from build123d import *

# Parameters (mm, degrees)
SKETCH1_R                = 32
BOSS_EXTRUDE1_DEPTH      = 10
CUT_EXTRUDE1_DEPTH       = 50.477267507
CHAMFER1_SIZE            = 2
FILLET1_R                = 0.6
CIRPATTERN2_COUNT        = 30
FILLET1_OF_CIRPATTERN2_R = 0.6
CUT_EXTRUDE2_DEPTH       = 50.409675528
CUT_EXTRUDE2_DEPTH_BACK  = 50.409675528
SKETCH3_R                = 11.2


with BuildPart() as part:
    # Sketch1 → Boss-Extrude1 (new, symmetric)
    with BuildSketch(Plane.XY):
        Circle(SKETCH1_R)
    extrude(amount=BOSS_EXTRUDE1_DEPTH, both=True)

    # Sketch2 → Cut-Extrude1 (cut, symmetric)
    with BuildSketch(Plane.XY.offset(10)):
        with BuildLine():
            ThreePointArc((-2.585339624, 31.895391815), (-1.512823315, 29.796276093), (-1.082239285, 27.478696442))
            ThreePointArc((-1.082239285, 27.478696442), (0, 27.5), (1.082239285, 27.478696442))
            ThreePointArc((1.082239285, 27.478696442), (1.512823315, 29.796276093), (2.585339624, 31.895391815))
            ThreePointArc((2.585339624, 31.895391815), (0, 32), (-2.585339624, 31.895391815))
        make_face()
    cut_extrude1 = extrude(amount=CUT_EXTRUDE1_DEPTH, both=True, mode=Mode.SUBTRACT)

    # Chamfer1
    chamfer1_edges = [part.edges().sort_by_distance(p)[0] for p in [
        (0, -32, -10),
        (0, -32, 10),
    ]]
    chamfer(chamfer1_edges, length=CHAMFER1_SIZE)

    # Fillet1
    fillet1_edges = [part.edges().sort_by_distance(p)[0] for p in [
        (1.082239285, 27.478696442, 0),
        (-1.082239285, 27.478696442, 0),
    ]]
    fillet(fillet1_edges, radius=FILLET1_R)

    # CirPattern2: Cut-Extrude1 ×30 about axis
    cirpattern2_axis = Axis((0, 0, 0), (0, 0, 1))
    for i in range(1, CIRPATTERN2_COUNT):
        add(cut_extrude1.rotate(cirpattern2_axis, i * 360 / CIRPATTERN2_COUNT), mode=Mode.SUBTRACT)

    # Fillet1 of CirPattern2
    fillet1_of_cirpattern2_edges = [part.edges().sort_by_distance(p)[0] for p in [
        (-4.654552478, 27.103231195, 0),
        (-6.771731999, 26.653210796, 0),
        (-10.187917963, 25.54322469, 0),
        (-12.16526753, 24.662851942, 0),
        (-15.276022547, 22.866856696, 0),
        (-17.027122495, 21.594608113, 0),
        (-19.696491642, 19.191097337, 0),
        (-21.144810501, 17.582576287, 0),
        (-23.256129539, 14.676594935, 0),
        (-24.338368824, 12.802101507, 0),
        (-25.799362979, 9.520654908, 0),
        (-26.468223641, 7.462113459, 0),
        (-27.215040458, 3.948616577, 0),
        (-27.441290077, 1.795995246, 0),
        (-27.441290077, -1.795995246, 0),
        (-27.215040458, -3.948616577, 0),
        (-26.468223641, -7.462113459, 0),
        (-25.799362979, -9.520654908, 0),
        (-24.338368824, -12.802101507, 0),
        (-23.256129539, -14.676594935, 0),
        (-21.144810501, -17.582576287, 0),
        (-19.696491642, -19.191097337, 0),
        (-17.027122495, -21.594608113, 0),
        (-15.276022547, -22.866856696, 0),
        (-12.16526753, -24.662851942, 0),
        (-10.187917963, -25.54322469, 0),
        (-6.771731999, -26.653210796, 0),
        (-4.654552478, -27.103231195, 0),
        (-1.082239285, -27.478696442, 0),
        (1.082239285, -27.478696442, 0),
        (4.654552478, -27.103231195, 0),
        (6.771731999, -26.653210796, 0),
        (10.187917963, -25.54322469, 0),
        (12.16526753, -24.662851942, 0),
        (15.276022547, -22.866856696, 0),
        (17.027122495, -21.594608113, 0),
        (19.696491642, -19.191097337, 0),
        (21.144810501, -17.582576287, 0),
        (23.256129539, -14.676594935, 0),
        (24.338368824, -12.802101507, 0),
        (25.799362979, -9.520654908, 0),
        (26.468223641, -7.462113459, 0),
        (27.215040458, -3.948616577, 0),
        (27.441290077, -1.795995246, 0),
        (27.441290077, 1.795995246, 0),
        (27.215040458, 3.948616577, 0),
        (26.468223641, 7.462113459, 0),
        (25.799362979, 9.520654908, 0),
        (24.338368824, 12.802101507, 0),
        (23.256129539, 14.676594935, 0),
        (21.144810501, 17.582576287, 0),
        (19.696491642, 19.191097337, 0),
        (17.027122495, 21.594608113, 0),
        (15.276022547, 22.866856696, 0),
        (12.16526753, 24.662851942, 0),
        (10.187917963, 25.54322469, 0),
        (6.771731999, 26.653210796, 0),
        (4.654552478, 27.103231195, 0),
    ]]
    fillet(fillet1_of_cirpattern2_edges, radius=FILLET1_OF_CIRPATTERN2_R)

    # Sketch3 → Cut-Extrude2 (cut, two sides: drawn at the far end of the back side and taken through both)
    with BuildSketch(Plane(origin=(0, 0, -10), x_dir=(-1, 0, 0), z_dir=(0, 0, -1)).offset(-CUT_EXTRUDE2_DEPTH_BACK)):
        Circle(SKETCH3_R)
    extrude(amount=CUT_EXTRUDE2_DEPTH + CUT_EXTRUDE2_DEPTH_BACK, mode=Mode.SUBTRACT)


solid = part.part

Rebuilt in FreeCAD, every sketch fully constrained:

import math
import FreeCAD as App
import Part
import Sketcher
Q = App.Units.Quantity


def edges_at(feature, points):
    """Names of the edges that pass closest to the given points."""
    edges = feature.Shape.Edges
    near = lambda p: min(range(len(edges)), key=lambda i: edges[i].distToShape(Part.Vertex(*p))[0])
    return sorted({f"Edge{near(p) + 1}" for p in points})

doc = App.newDocument("Part")
body = doc.addObject("PartDesign::Body", "Body")

sketch1 = body.newObject("Sketcher::SketchObject", "Sketch")
sketch1.AttachmentSupport = (doc.getObject("XY_Plane"), [""])
sketch1.MapMode = "FlatFace"
sketch1.addGeometry(Part.Circle(App.Vector(0, 0, 0), App.Vector(0, 0, 1), 32), False)
sketch1.addConstraint(Sketcher.Constraint("Coincident", 0, 3, -1, 1))
sketch1.addConstraint(Sketcher.Constraint("Diameter", 0, Q("64 mm")))
pad1 = body.newObject("PartDesign::Pad", "Pad")
pad1.Profile = sketch1
pad1.Length = 20
pad1.Midplane = True

sketch2 = body.newObject("Sketcher::SketchObject", "Sketch001")
sketch2.AttachmentSupport = (doc.getObject("XY_Plane"), [""])
sketch2.MapMode = "FlatFace"
sketch2.AttachmentOffset = App.Placement(App.Vector(0, 0, 10), App.Rotation())
sketch2.addGeometry(Part.ArcOfCircle(Part.Circle(App.Vector(-9.3, 27.2, 0), App.Vector(0, 0, 1), 8.2), math.radians(2), math.radians(35)), False)
sketch2.addGeometry(Part.ArcOfCircle(Part.Circle(App.Vector(0, 0, 0), App.Vector(0, 0, 1), 27.5), math.radians(87.74), math.radians(92.26)), False)
sketch2.addGeometry(Part.ArcOfCircle(Part.Circle(App.Vector(9.3, 27.2, 0), App.Vector(0, 0, 1), 8.2), math.radians(145), math.radians(178)), False)
sketch2.addGeometry(Part.ArcOfCircle(Part.Circle(App.Vector(0, 0, 0), App.Vector(0, 0, 1), 32), math.radians(85.37), math.radians(94.63)), False)
sketch2.addConstraint(Sketcher.Constraint("Coincident", 0, 1, 1, 2))
sketch2.addConstraint(Sketcher.Constraint("Coincident", 1, 1, 2, 2))
sketch2.addConstraint(Sketcher.Constraint("Coincident", 2, 1, 3, 1))
sketch2.addConstraint(Sketcher.Constraint("Coincident", 3, 2, 0, 2))
sketch2.addConstraint(Sketcher.Constraint("Coincident", 1, 3, -1, 1))
sketch2.addConstraint(Sketcher.Constraint("Coincident", 3, 3, -1, 1))
sketch2.addConstraint(Sketcher.Constraint("Equal", 0, 2))
sketch2.addConstraint(Sketcher.Constraint("Symmetric", 0, 3, 2, 3, -2))
sketch2.addConstraint(Sketcher.Constraint("Radius", 3, Q("32 mm")))
sketch2.addConstraint(Sketcher.Constraint("Radius", 1, Q("27.500001 mm")))
sketch2.addConstraint(Sketcher.Constraint("Radius", 0, Q("8.194477 mm")))
sketch2.addConstraint(Sketcher.Constraint("DistanceX", 1, 1, 2, 1, Q("1.5031 mm")))
sketch2.addConstraint(Sketcher.Constraint("DistanceX", 0, 3, -1, 1, Q("9.270369 mm")))
pocket1 = body.newObject("PartDesign::Pocket", "Pocket")
pocket1.Profile = sketch2
pocket1.Length = 100.954535
pocket1.Midplane = True
doc.recompute()

chamfer = body.newObject("PartDesign::Chamfer", "Chamfer")
chamfer.Base = (pocket1, edges_at(pocket1, [(0, -32, -10), (0, -32, 10)]))
chamfer.Size = 2
doc.recompute()

fillet = body.newObject("PartDesign::Fillet", "Fillet")
fillet.Base = (chamfer, edges_at(chamfer, [(1.082, 27.479, 0), (-1.082, 27.479, 0)]))
fillet.Radius = 0.6
doc.recompute()

polarpattern = body.newObject("PartDesign::PolarPattern", "PolarPattern")
polarpattern.Originals = [pocket1]
polarpattern.Axis = (doc.getObject("Z_Axis"), [""])
polarpattern.Angle = 360
polarpattern.Occurrences = 30
body.Tip = polarpattern
doc.recompute()

fillet2 = body.newObject("PartDesign::Fillet", "Fillet001")
fillet2.Base = (polarpattern, edges_at(polarpattern, [
    (-4.655, 27.103, 0),
    (-6.772, 26.653, 0),
    (-10.188, 25.543, 0),
    (-12.165, 24.663, 0),
    (-15.276, 22.867, 0),
    (-17.027, 21.595, 0),
    (-19.696, 19.191, 0),
    (-21.145, 17.583, 0),
    (-23.256, 14.677, 0),
    (-24.338, 12.802, 0),
    (-25.799, 9.521, 0),
    (-26.468, 7.462, 0),
    (-27.215, 3.949, 0),
    (-27.441, 1.796, 0),
    (-27.441, -1.796, 0),
    (-27.215, -3.949, 0),
    (-26.468, -7.462, 0),
    (-25.799, -9.521, 0),
    (-24.338, -12.802, 0),
    (-23.256, -14.677, 0),
    (-21.145, -17.583, 0),
    (-19.696, -19.191, 0),
    (-17.027, -21.595, 0),
    (-15.276, -22.867, 0),
    (-12.165, -24.663, 0),
    (-10.188, -25.543, 0),
    (-6.772, -26.653, 0),
    (-4.655, -27.103, 0),
    (-1.082, -27.479, 0),
    (1.082, -27.479, 0),
    (4.655, -27.103, 0),
    (6.772, -26.653, 0),
    (10.188, -25.543, 0),
    (12.165, -24.663, 0),
    (15.276, -22.867, 0),
    (17.027, -21.595, 0),
    (19.696, -19.191, 0),
    (21.145, -17.583, 0),
    (23.256, -14.677, 0),
    (24.338, -12.802, 0),
    (25.799, -9.521, 0),
    (26.468, -7.462, 0),
    (27.215, -3.949, 0),
    (27.441, -1.796, 0),
    (27.441, 1.796, 0),
    (27.215, 3.949, 0),
    (26.468, 7.462, 0),
    (25.799, 9.521, 0),
    (24.338, 12.802, 0),
    (23.256, 14.677, 0),
    (21.145, 17.583, 0),
    (19.696, 19.191, 0),
    (17.027, 21.595, 0),
    (15.276, 22.867, 0),
    (12.165, 24.663, 0),
    (10.188, 25.543, 0),
    (6.772, 26.653, 0),
    (4.655, 27.103, 0),
]))
fillet2.Radius = 0.6

sketch3 = body.newObject("Sketcher::SketchObject", "Sketch002")
sketch3.AttachmentSupport = (doc.getObject("XY_Plane"), [""])
sketch3.MapMode = "FlatFace"
sketch3.AttachmentOffset = App.Placement(App.Vector(0, 0, -10), App.Rotation())
sketch3.addGeometry(Part.Circle(App.Vector(0, 0, 0), App.Vector(0, 0, 1), 11), False)
sketch3.addConstraint(Sketcher.Constraint("Coincident", 0, 3, -1, 1))
sketch3.addConstraint(Sketcher.Constraint("Diameter", 0, Q("22.4 mm")))
pocket2 = body.newObject("PartDesign::Pocket", "Pocket001")
pocket2.Profile = sketch3
pocket2.Type = "ThroughAll"
pocket2.Midplane = True

doc.recompute()
